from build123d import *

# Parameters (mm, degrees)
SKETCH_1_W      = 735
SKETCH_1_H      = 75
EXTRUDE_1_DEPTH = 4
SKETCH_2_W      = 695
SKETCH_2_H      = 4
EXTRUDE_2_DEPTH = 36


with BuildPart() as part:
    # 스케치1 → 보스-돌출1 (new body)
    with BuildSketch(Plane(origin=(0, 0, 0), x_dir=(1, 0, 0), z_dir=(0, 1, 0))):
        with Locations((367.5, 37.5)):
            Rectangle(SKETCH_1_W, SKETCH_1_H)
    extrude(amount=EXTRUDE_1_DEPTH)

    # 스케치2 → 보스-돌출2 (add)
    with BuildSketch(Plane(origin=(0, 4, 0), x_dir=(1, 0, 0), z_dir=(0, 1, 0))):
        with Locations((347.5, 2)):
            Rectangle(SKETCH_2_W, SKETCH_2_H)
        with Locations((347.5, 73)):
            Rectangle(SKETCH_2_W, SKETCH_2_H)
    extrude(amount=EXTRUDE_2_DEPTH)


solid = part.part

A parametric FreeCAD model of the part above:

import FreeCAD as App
import Part
import Sketcher
Q = App.Units.Quantity

doc = App.newDocument("Part")
body = doc.addObject("PartDesign::Body", "Body")

sketch1 = body.newObject("Sketcher::SketchObject", "Sketch")
sketch1.AttachmentSupport = (doc.getObject("XZ_Plane"), [""])
sketch1.MapMode = "FlatFace"
sketch1.addGeometry([
    Part.LineSegment(App.Vector(0, -75, 0), App.Vector(0, 0, 0)),
    Part.LineSegment(App.Vector(0, 0, 0), App.Vector(735, 0, 0)),
    Part.LineSegment(App.Vector(735, 0, 0), App.Vector(735, -75, 0)),
    Part.LineSegment(App.Vector(735, -75, 0), App.Vector(0, -75, 0)),
], False)
sketch1.addConstraint([
    Sketcher.Constraint("Coincident", 0, 2, 1, 1),
    Sketcher.Constraint("Coincident", 1, 2, 2, 1),
    Sketcher.Constraint("Coincident", 2, 2, 3, 1),
    Sketcher.Constraint("Coincident", 3, 2, 0, 1),
    Sketcher.Constraint("Vertical", 0),
    Sketcher.Constraint("Horizontal", 1),
    Sketcher.Constraint("Vertical", 2),
    Sketcher.Constraint("Horizontal", 3),
    Sketcher.Constraint("Coincident", 0, 2, -1, 1),
    Sketcher.Constraint("DistanceX", 1, 1, 1, 2, Q("735 mm")),
    Sketcher.Constraint("DistanceY", 0, 1, 0, 2, Q("75 mm")),
])
pad1 = body.newObject("PartDesign::Pad", "Pad")
pad1.Profile = sketch1
pad1.Length = 4
pad1.Reversed = True

sketch2 = body.newObject("Sketcher::SketchObject", "Sketch001")
sketch2.AttachmentSupport = (doc.getObject("XZ_Plane"), [""])
sketch2.MapMode = "FlatFace"
sketch2.AttachmentOffset = App.Placement(App.Vector(0, 0, -4), App.Rotation())
sketch2.addGeometry([
    Part.LineSegment(App.Vector(0, -4, 0), App.Vector(0, 0, 0)),
    Part.LineSegment(App.Vector(0, 0, 0), App.Vector(695, 0, 0)),
    Part.LineSegment(App.Vector(695, 0, 0), App.Vector(695, -4, 0)),
    Part.LineSegment(App.Vector(695, -4, 0), App.Vector(0, -4, 0)),
    Part.LineSegment(App.Vector(0, -75, 0), App.Vector(0, -71, 0)),
    Part.LineSegment(App.Vector(0, -71, 0), App.Vector(695, -71, 0)),
    Part.LineSegment(App.Vector(695, -71, 0), App.Vector(695, -75, 0)),
    Part.LineSegment(App.Vector(695, -75, 0), App.Vector(0, -75, 0)),
], False)
sketch2.addConstraint([
    Sketcher.Constraint("Coincident", 0, 2, 1, 1),
    Sketcher.Constraint("Coincident", 1, 2, 2, 1),
    Sketcher.Constraint("Coincident", 2, 2, 3, 1),
    Sketcher.Constraint("Coincident", 3, 2, 0, 1),
    Sketcher.Constraint("Coincident", 4, 2, 5, 1),
    Sketcher.Constraint("Coincident", 5, 2, 6, 1),
    Sketcher.Constraint("Coincident", 6, 2, 7, 1),
    Sketcher.Constraint("Coincident", 7, 2, 4, 1),
    Sketcher.Constraint("Vertical", 0),
    Sketcher.Constraint("Horizontal", 1),
    Sketcher.Constraint("Vertical", 2),
    Sketcher.Constraint("Horizontal", 3),
    Sketcher.Constraint("Vertical", 4),
    Sketcher.Constraint("Horizontal", 5),
    Sketcher.Constraint("Vertical", 6),
    Sketcher.Constraint("Horizontal", 7),
    Sketcher.Constraint("Coincident", 0, 2, -1, 1),
    Sketcher.Constraint("PointOnObject", 4, 2, -2),
    Sketcher.Constraint("Vertical", 2, 2, 5, 2),
    Sketcher.Constraint("Equal", 2, 4),
    Sketcher.Constraint("DistanceX", 1, 1, 1, 2, Q("695 mm")),
    Sketcher.Constraint("DistanceY", 0, 1, 0, 2, Q("4 mm")),
    Sketcher.Constraint("DistanceY", 4, 2, -1, 1, Q("71 mm")),
])
pad2 = body.newObject("PartDesign::Pad", "Pad001")
pad2.Profile = sketch2
pad2.Length = 36
pad2.Reversed = True

doc.recompute()
